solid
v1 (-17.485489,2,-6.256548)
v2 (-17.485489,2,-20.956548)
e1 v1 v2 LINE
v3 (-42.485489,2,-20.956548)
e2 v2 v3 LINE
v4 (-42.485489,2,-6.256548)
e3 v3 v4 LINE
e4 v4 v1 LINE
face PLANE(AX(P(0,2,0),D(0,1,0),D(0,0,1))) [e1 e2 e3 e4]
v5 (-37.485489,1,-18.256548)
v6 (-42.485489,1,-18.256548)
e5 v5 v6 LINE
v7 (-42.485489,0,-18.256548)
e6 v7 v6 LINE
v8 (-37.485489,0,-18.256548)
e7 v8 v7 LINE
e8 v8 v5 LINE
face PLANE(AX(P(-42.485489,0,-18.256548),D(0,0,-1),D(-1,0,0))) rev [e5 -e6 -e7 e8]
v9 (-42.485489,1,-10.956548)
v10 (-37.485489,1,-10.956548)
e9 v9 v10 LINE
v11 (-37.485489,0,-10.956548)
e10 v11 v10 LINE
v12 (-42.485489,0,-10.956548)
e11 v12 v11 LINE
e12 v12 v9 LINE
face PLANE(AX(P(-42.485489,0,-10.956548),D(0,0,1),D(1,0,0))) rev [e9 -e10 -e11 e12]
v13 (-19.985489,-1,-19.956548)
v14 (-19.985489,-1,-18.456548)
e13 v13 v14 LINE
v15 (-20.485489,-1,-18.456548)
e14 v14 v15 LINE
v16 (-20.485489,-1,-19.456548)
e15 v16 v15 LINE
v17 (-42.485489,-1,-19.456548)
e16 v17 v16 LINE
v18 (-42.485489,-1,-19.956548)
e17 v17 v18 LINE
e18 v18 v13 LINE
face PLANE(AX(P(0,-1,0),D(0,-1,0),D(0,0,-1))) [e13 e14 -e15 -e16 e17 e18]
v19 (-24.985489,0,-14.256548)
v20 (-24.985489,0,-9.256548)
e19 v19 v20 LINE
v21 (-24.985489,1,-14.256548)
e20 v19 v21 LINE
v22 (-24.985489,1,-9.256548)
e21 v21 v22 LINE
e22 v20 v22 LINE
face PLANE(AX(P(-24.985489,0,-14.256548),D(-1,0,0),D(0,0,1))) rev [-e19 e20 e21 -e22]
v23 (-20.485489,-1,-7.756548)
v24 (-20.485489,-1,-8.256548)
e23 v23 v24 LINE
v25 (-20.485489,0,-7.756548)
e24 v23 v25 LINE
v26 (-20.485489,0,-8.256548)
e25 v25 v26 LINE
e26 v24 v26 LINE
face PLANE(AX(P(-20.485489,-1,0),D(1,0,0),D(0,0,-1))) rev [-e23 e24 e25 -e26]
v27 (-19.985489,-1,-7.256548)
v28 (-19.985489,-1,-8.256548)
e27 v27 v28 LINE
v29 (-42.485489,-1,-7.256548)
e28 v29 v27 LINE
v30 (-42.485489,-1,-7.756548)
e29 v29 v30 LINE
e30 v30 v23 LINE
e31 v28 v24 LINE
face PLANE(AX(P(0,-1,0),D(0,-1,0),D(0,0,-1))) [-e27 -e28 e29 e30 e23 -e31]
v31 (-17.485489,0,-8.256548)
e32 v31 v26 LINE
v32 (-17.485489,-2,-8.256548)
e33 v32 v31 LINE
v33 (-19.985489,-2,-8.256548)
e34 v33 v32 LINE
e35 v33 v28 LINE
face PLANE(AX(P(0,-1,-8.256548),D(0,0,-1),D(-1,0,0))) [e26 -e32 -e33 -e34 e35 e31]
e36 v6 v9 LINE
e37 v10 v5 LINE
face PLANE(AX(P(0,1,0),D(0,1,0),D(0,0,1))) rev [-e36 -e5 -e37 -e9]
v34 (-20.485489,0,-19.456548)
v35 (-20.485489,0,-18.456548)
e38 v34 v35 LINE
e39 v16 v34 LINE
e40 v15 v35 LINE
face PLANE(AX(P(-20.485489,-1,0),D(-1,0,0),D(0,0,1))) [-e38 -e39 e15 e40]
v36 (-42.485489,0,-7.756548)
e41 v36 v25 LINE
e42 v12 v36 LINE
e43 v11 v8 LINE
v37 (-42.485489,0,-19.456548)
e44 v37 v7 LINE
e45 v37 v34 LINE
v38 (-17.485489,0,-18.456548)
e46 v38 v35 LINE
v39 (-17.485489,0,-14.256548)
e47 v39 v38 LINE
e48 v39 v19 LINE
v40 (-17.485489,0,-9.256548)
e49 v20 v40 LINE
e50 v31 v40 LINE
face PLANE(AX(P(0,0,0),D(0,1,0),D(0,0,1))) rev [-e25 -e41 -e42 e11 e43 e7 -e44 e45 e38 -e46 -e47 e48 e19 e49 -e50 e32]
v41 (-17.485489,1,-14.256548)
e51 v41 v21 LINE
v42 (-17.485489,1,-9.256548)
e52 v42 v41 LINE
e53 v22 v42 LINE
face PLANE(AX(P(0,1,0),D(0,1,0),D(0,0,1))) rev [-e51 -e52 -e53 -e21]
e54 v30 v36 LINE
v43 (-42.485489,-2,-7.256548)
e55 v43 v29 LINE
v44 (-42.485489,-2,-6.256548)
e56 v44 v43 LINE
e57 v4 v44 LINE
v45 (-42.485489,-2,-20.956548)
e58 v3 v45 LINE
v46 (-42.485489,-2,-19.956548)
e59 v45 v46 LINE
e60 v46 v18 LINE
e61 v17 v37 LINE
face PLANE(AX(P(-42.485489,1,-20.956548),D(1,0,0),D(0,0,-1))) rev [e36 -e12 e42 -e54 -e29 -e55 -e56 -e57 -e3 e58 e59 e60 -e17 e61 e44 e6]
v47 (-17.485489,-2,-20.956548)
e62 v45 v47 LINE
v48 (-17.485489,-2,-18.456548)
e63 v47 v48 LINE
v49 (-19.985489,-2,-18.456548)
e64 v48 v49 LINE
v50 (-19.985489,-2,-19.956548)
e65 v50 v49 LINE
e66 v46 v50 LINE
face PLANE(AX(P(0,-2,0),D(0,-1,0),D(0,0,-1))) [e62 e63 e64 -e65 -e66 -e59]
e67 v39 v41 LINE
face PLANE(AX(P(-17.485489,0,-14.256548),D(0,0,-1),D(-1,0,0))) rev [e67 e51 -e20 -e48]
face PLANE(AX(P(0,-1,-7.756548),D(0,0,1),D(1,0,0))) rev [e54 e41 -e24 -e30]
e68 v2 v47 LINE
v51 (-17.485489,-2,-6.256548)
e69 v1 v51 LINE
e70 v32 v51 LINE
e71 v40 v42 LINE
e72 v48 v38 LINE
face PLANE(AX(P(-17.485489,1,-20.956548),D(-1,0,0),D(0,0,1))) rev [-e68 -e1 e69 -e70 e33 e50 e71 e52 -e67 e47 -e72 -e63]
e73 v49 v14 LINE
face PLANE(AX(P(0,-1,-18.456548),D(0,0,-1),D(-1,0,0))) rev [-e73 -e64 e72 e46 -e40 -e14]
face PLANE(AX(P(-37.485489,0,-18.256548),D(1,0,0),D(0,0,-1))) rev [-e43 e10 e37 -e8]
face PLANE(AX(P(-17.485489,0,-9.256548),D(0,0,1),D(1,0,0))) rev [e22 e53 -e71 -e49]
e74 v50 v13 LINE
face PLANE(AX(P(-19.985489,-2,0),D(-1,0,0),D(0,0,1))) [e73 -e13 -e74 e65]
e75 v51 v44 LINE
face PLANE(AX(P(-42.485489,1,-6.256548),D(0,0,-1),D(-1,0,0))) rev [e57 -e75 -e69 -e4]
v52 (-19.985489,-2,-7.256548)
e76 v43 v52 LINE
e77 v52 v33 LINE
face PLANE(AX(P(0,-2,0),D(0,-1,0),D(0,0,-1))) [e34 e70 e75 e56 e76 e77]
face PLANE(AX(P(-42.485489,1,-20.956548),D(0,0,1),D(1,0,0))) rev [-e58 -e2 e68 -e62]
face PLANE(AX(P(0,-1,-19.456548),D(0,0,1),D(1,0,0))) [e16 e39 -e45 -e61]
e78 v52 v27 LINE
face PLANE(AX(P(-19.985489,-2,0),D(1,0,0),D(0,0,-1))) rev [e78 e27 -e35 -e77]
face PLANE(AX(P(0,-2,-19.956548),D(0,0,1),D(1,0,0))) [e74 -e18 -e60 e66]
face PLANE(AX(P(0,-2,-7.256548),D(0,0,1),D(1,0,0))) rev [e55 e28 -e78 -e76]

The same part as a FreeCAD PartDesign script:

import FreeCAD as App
import Part
import Sketcher
Q = App.Units.Quantity


def add_polygon(sketch, points):
    """Adds a closed chain of lines whose ends are joined by coincident constraints."""
    first, n = sketch.GeometryCount, len(points)
    for a, b in zip(points, points[1:] + points[:1]):
        sketch.addGeometry(Part.LineSegment(App.Vector(*a, 0), App.Vector(*b, 0)), False)
    for i in range(n):
        sketch.addConstraint(Sketcher.Constraint("Coincident", first + i, 2, first + (i + 1) % n, 1))

doc = App.newDocument("Part")
body = doc.addObject("PartDesign::Body", "Body")

sketch1 = body.newObject("Sketcher::SketchObject", "Sketch")
sketch1.AttachmentSupport = (doc.getObject("XZ_Plane"), [""])
sketch1.MapMode = "FlatFace"
add_polygon(sketch1, [(-42.485489, -20.956548), (-42.485489, -6.256548), (-17.485489, -6.256548), (-17.485489, -20.956548)])
sketch1.addConstraint(Sketcher.Constraint("Vertical", 0))
sketch1.addConstraint(Sketcher.Constraint("Horizontal", 1))
sketch1.addConstraint(Sketcher.Constraint("Vertical", 2))
sketch1.addConstraint(Sketcher.Constraint("Horizontal", 3))
sketch1.addConstraint(Sketcher.Constraint("DistanceX", 1, 1, 1, 2, Q("25 mm")))
sketch1.addConstraint(Sketcher.Constraint("DistanceY", 0, 1, 0, 2, Q("14.7 mm")))
sketch1.addConstraint(Sketcher.Constraint("DistanceX", 0, 2, -1, 1, Q("42.485489 mm")))
sketch1.addConstraint(Sketcher.Constraint("DistanceY", 0, 2, -1, 1, Q("6.256548 mm")))
pad1 = body.newObject("PartDesign::Pad", "Pad")
pad1.Profile = sketch1
pad1.Length = 1
pad1.Reversed = True

sketch2 = body.newObject("Sketcher::SketchObject", "Sketch001")
sketch2.AttachmentSupport = (doc.getObject("XZ_Plane"), [""])
sketch2.MapMode = "FlatFace"
sketch2.AttachmentOffset = App.Placement(App.Vector(0, 0, -1), App.Rotation())
add_polygon(sketch2, [(-42.485489, -18.256548), (-42.485489, -10.956548), (-37.485489, -10.956548), (-37.485489, -18.256548)])
sketch2.addConstraint(Sketcher.Constraint("Vertical", 0))
sketch2.addConstraint(Sketcher.Constraint("Horizontal", 1))
sketch2.addConstraint(Sketcher.Constraint("Vertical", 2))
sketch2.addConstraint(Sketcher.Constraint("Horizontal", 3))
sketch2.addConstraint(Sketcher.Constraint("DistanceX", 1, 1, 1, 2, Q("5 mm")))
sketch2.addConstraint(Sketcher.Constraint("DistanceY", 0, 1, 0, 2, Q("7.3 mm")))
sketch2.addConstraint(Sketcher.Constraint("DistanceX", 0, 2, -1, 1, Q("42.485489 mm")))
sketch2.addConstraint(Sketcher.Constraint("DistanceY", 0, 2, -1, 1, Q("10.956548 mm")))
pocket1 = body.newObject("PartDesign::Pocket", "Pocket")
pocket1.Profile = sketch2
pocket1.Length = 1
pocket1.Reversed = True

sketch3 = body.newObject("Sketcher::SketchObject", "Sketch002")
sketch3.AttachmentSupport = (doc.getObject("XZ_Plane"), [""])
sketch3.MapMode = "FlatFace"
sketch3.AttachmentOffset = App.Placement(App.Vector(0, 0, -1), App.Rotation())
add_polygon(sketch3, [(-24.985489, -14.256548), (-24.985489, -9.256548), (-17.485489, -9.256548), (-17.485489, -14.256548)])
sketch3.addConstraint(Sketcher.Constraint("Vertical", 0))
sketch3.addConstraint(Sketcher.Constraint("Horizontal", 1))
sketch3.addConstraint(Sketcher.Constraint("Vertical", 2))
sketch3.addConstraint(Sketcher.Constraint("Horizontal", 3))
sketch3.addConstraint(Sketcher.Constraint("DistanceY", 0, 1, 0, 2, Q("5 mm")))
sketch3.addConstraint(Sketcher.Constraint("DistanceX", 1, 1, 1, 2, Q("7.5 mm")))
sketch3.addConstraint(Sketcher.Constraint("DistanceX", 0, 2, -1, 1, Q("24.985489 mm")))
sketch3.addConstraint(Sketcher.Constraint("DistanceY", 0, 2, -1, 1, Q("9.256548 mm")))
pocket2 = body.newObject("PartDesign::Pocket", "Pocket001")
pocket2.Profile = sketch3
pocket2.Length = 1
pocket2.Reversed = True

sketch4 = body.newObject("Sketcher::SketchObject", "Sketch003")
sketch4.AttachmentSupport = (doc.getObject("XZ_Plane"), [""])
sketch4.MapMode = "FlatFace"
add_polygon(sketch4, [(-42.485489, -6.256548), (-42.485489, -7.756548), (-20.485489, -7.756548), (-20.485489, -8.256548), (-17.485489, -8.256548), (-17.485489, -6.256548)])
add_polygon(sketch4, [(-20.485489, -19.456548), (-42.485489, -19.456548), (-42.485489, -20.956548), (-17.485489, -20.956548), (-17.485489, -18.456548), (-20.485489, -18.456548)])
sketch4.addConstraint(Sketcher.Constraint("Vertical", 0))
sketch4.addConstraint(Sketcher.Constraint("Horizontal", 1))
sketch4.addConstraint(Sketcher.Constraint("Vertical", 2))
sketch4.addConstraint(Sketcher.Constraint("Horizontal", 3))
sketch4.addConstraint(Sketcher.Constraint("Vertical", 4))
sketch4.addConstraint(Sketcher.Constraint("Horizontal", 5))
sketch4.addConstraint(Sketcher.Constraint("Horizontal", 6))
sketch4.addConstraint(Sketcher.Constraint("Vertical", 7))
sketch4.addConstraint(Sketcher.Constraint("Horizontal", 8))
sketch4.addConstraint(Sketcher.Constraint("Vertical", 9))
sketch4.addConstraint(Sketcher.Constraint("Horizontal", 10))
sketch4.addConstraint(Sketcher.Constraint("Vertical", 11))
sketch4.addConstraint(Sketcher.Constraint("Vertical", 5, 2, 6, 2))
sketch4.addConstraint(Sketcher.Constraint("Vertical", 4, 2, 8, 2))
sketch4.addConstraint(Sketcher.Constraint("Vertical", 2, 2, 10, 2))
sketch4.addConstraint(Sketcher.Constraint("Equal", 0, 7))
sketch4.addConstraint(Sketcher.Constraint("DistanceX", 1, 1, 1, 2, Q("22 mm")))
sketch4.addConstraint(Sketcher.Constraint("DistanceX", 3, 1, 3, 2, Q("3 mm")))
sketch4.addConstraint(Sketcher.Constraint("DistanceY", 4, 1, 4, 2, Q("2 mm")))
sketch4.addConstraint(Sketcher.Constraint("DistanceY", 11, 2, 11, 1, Q("1 mm")))
sketch4.addConstraint(Sketcher.Constraint("DistanceY", 0, 2, 0, 1, Q("1.5 mm")))
sketch4.addConstraint(Sketcher.Constraint("DistanceY", 6, 2, 0, 2, Q("11.7 mm")))
sketch4.addConstraint(Sketcher.Constraint("DistanceX", 0, 2, -1, 1, Q("42.485489 mm")))
sketch4.addConstraint(Sketcher.Constraint("DistanceY", 0, 2, -1, 1, Q("7.756548 mm")))
pad2 = body.newObject("PartDesign::Pad", "Pad001")
pad2.Profile = sketch4
pad2.Length = 1

sketch5 = body.newObject("Sketcher::SketchObject", "Sketch004")
sketch5.AttachmentSupport = (doc.getObject("XZ_Plane"), [""])
sketch5.MapMode = "FlatFace"
sketch5.AttachmentOffset = App.Placement(App.Vector(0, 0, -1), App.Rotation())
add_polygon(sketch5, [(-42.485489, -20.956548), (-42.485489, -6.256548), (-17.485489, -6.256548), (-17.485489, -20.956548)])
sketch5.addConstraint(Sketcher.Constraint("Vertical", 0))
sketch5.addConstraint(Sketcher.Constraint("Horizontal", 1))
sketch5.addConstraint(Sketcher.Constraint("Vertical", 2))
sketch5.addConstraint(Sketcher.Constraint("Horizontal", 3))
sketch5.addConstraint(Sketcher.Constraint("DistanceX", 1, 1, 1, 2, Q("25 mm")))
sketch5.addConstraint(Sketcher.Constraint("DistanceY", 0, 1, 0, 2, Q("14.7 mm")))
sketch5.addConstraint(Sketcher.Constraint("DistanceX", 0, 2, -1, 1, Q("42.485489 mm")))
sketch5.addConstraint(Sketcher.Constraint("DistanceY", 0, 2, -1, 1, Q("6.256548 mm")))
pad3 = body.newObject("PartDesign::Pad", "Pad002")
pad3.Profile = sketch5
pad3.Length = 1
pad3.Reversed = True

sketch6 = body.newObject("Sketcher::SketchObject", "Sketch005")
sketch6.AttachmentSupport = (doc.getObject("XZ_Plane"), [""])
sketch6.MapMode = "FlatFace"
sketch6.AttachmentOffset = App.Placement(App.Vector(0, 0, 1), App.Rotation())
add_polygon(sketch6, [(-42.485489, -6.256548), (-42.485489, -7.256548), (-19.985489, -7.256548), (-19.985489, -8.256548), (-17.485489, -8.256548), (-17.485489, -6.256548)])
add_polygon(sketch6, [(-17.485489, -18.456548), (-19.985489, -18.456548), (-19.985489, -19.956548), (-42.485489, -19.956548), (-42.485489, -20.956548), (-17.485489, -20.956548)])
sketch6.addConstraint(Sketcher.Constraint("Vertical", 0))
sketch6.addConstraint(Sketcher.Constraint("Horizontal", 1))
sketch6.addConstraint(Sketcher.Constraint("Vertical", 2))
sketch6.addConstraint(Sketcher.Constraint("Horizontal", 3))
sketch6.addConstraint(Sketcher.Constraint("Vertical", 4))
sketch6.addConstraint(Sketcher.Constraint("Horizontal", 5))
sketch6.addConstraint(Sketcher.Constraint("Horizontal", 6))
sketch6.addConstraint(Sketcher.Constraint("Vertical", 7))
sketch6.addConstraint(Sketcher.Constraint("Horizontal", 8))
sketch6.addConstraint(Sketcher.Constraint("Vertical", 9))
sketch6.addConstraint(Sketcher.Constraint("Horizontal", 10))
sketch6.addConstraint(Sketcher.Constraint("Vertical", 11))
sketch6.addConstraint(Sketcher.Constraint("Vertical", 2, 2, 6, 2))
sketch6.addConstraint(Sketcher.Constraint("Vertical", 5, 2, 8, 2))
sketch6.addConstraint(Sketcher.Constraint("Vertical", 4, 2, 10, 2))
sketch6.addConstraint(Sketcher.Constraint("Equal", 0, 2))
sketch6.addConstraint(Sketcher.Constraint("Equal", 2, 9))
sketch6.addConstraint(Sketcher.Constraint("Equal", 6, 11))
sketch6.addConstraint(Sketcher.Constraint("DistanceX", 5, 2, 5, 1, Q("25 mm")))
sketch6.addConstraint(Sketcher.Constraint("DistanceY", 0, 2, 0, 1, Q("1 mm")))
sketch6.addConstraint(Sketcher.Constraint("DistanceX", 1, 1, 1, 2, Q("22.5 mm")))
sketch6.addConstraint(Sketcher.Constraint("DistanceY", 6, 2, 2, 2, Q("10.2 mm")))
sketch6.addConstraint(Sketcher.Constraint("DistanceX", 0, 2, -1, 1, Q("42.485489 mm")))
sketch6.addConstraint(Sketcher.Constraint("DistanceY", 0, 2, -1, 1, Q("7.256548 mm")))
pad4 = body.newObject("PartDesign::Pad", "Pad003")
pad4.Profile = sketch6
pad4.Length = 1

doc.recompute()
